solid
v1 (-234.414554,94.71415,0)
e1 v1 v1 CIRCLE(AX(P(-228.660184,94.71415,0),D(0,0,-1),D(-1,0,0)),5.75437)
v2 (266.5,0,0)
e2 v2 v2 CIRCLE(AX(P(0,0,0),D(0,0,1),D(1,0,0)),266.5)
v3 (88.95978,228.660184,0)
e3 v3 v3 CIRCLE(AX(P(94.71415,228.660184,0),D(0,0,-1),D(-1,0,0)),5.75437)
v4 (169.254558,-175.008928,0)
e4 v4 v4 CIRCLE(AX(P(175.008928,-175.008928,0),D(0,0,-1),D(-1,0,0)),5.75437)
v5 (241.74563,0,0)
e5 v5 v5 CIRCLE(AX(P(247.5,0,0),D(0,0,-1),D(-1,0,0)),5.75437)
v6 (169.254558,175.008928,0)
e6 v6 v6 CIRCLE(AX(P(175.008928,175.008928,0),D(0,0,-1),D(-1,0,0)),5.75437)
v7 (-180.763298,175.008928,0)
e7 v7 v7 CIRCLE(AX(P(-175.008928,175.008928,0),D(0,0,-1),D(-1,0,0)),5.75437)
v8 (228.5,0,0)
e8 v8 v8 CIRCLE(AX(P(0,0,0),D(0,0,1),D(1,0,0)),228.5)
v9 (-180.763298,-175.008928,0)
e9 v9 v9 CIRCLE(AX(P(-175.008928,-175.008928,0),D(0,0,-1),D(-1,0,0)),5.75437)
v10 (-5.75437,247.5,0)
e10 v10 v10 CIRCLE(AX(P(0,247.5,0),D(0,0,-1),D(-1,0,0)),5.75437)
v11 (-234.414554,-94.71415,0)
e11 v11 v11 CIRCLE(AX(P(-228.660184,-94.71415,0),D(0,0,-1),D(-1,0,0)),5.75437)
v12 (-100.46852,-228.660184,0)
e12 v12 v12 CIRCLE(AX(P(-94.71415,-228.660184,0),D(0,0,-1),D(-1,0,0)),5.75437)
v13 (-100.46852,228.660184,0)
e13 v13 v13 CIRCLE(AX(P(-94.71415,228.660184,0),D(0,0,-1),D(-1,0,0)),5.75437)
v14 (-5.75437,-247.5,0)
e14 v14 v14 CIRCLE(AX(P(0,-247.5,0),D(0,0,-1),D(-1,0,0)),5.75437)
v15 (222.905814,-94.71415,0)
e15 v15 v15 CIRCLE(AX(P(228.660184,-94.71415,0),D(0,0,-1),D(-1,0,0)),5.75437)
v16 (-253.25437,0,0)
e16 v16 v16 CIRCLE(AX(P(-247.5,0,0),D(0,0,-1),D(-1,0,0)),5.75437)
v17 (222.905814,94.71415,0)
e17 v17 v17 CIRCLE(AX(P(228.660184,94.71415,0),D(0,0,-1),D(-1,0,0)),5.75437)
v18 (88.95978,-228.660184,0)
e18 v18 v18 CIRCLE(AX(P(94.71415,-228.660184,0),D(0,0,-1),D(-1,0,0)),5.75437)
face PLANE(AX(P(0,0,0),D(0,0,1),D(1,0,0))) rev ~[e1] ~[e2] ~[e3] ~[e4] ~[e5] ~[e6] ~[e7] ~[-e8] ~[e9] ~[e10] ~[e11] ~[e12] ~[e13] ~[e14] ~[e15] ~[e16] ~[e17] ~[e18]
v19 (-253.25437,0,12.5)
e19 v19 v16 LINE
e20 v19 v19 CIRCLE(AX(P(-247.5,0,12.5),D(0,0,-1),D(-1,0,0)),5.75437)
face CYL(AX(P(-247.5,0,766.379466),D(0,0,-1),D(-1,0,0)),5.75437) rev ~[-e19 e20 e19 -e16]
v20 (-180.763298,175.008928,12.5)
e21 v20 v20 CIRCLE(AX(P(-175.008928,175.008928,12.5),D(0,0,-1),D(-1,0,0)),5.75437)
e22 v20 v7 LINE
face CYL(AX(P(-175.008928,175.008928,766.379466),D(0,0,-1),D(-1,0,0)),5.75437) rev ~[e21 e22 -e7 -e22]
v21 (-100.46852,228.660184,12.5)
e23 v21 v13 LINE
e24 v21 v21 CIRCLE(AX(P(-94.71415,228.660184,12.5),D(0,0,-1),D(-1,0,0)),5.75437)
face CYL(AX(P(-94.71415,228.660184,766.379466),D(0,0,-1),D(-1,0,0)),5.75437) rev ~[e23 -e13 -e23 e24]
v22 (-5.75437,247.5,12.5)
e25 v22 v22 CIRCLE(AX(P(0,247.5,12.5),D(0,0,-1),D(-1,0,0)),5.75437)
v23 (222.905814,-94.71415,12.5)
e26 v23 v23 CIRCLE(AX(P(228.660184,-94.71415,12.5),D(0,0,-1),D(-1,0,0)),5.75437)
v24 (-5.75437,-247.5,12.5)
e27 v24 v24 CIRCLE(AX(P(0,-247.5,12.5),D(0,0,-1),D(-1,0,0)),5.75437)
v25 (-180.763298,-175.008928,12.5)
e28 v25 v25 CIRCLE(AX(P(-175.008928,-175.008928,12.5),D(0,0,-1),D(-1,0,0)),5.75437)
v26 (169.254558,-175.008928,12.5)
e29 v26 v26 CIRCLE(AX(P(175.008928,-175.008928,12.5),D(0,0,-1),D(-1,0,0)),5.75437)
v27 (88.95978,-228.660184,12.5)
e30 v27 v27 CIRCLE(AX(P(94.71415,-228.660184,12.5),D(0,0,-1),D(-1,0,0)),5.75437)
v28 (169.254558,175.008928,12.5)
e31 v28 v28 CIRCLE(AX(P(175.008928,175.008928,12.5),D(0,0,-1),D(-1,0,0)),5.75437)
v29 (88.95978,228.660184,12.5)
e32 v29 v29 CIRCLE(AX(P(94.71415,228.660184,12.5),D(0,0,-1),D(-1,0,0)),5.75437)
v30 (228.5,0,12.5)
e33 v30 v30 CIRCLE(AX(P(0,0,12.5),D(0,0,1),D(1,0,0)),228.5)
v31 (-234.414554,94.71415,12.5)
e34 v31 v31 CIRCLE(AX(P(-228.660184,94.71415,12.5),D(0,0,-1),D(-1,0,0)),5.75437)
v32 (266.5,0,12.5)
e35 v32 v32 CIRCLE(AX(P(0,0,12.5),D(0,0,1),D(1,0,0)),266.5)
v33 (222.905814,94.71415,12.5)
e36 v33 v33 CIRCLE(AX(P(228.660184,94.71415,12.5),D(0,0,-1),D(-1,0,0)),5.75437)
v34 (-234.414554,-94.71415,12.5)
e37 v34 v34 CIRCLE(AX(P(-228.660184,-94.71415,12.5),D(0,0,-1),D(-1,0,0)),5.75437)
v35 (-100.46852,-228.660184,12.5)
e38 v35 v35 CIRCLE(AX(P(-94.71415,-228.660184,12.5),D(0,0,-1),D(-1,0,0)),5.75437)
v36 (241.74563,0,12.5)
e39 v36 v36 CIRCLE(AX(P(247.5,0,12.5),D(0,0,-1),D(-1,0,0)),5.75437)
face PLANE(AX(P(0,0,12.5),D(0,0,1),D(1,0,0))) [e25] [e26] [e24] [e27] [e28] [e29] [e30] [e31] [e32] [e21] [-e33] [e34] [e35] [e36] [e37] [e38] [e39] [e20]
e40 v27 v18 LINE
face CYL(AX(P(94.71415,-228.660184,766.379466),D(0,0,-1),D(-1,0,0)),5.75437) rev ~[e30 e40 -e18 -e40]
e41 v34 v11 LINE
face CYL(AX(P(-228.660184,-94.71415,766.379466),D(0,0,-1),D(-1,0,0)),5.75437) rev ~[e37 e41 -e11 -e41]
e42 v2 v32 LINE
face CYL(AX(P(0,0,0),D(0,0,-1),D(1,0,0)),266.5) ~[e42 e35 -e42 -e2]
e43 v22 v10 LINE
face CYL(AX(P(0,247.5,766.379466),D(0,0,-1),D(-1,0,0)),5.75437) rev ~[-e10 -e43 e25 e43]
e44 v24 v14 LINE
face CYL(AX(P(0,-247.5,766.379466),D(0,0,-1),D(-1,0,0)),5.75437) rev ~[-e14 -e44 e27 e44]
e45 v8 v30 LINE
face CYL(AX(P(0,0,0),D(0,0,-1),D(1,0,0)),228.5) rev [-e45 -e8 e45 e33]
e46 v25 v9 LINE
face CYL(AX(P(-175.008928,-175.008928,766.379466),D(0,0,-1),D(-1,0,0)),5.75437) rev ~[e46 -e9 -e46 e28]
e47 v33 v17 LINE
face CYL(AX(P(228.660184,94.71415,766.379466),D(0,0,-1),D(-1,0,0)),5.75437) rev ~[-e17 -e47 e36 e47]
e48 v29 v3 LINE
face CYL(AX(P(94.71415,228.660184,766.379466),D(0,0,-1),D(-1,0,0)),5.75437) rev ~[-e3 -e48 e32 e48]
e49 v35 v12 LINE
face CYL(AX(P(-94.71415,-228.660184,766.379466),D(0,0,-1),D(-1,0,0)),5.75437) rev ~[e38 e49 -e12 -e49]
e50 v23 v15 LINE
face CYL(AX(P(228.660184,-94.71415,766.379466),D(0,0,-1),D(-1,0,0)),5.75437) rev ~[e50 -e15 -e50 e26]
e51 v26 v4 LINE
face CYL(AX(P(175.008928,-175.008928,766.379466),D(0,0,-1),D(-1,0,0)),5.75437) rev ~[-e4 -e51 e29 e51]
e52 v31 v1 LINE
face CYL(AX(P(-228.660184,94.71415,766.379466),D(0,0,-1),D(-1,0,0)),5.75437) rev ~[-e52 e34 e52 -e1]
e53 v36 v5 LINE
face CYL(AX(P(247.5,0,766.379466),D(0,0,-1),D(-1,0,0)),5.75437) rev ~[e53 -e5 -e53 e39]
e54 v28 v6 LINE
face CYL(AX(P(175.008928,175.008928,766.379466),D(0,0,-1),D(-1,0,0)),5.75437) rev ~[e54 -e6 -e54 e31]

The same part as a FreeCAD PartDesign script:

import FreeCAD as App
import Part
import Sketcher
Q = App.Units.Quantity

doc = App.newDocument("Part")
body = doc.addObject("PartDesign::Body", "Body")

# Sketch on XY plane
sketch1 = body.newObject("Sketcher::SketchObject", "Sketch")
sketch1.AttachmentSupport = (doc.getObject("XY_Plane"), [""])
sketch1.MapMode = "FlatFace"
sketch1.addGeometry([
    Part.Circle(App.Vector(0, 0, 0), App.Vector(0, 0, 1), 266),
    Part.Circle(App.Vector(0, 0, 0), App.Vector(0, 0, 1), 228),
], False)
sketch1.addConstraint([
    Sketcher.Constraint("Coincident", 0, 3, -1, 1),
    Sketcher.Constraint("Coincident", 1, 3, -1, 1),
    Sketcher.Constraint("Diameter", 0, Q("533 mm")),
    Sketcher.Constraint("Diameter", 1, Q("457 mm")),
])
pad1 = body.newObject("PartDesign::Pad", "Pad")
pad1.Profile = sketch1
pad1.Length = 12.5

# Sketch on XY plane
sketch2 = body.newObject("Sketcher::SketchObject", "Sketch001")
sketch2.AttachmentSupport = (doc.getObject("XY_Plane"), [""])
sketch2.MapMode = "FlatFace"
sketch2.AttachmentOffset = App.Placement(App.Vector(0, 0, 12.5), App.Rotation())
sketch2.addGeometry([
    Part.Circle(App.Vector(-95, 229, 0), App.Vector(0, 0, 1), 6),  # 0
    Part.Circle(App.Vector(0, 248, 0), App.Vector(0, 0, 1), 6),  # 1
    Part.Circle(App.Vector(95, 229, 0), App.Vector(0, 0, 1), 6),  # 2
    Part.Circle(App.Vector(175, 175, 0), App.Vector(0, 0, 1), 6),  # 3
    Part.Circle(App.Vector(229, 95, 0), App.Vector(0, 0, 1), 6),  # 4
    Part.Circle(App.Vector(248, 0, 0), App.Vector(0, 0, 1), 6),  # 5
    Part.Circle(App.Vector(229, -95, 0), App.Vector(0, 0, 1), 6),  # 6
    Part.Circle(App.Vector(175, -175, 0), App.Vector(0, 0, 1), 6),  # 7
    Part.Circle(App.Vector(95, -229, 0), App.Vector(0, 0, 1), 6),  # 8
    Part.Circle(App.Vector(0, -248, 0), App.Vector(0, 0, 1), 6),  # 9
    Part.Circle(App.Vector(-95, -229, 0), App.Vector(0, 0, 1), 6),  # 10
    Part.Circle(App.Vector(-175, -175, 0), App.Vector(0, 0, 1), 6),  # 11
    Part.Circle(App.Vector(-229, -95, 0), App.Vector(0, 0, 1), 6),  # 12
    Part.Circle(App.Vector(-248, 0, 0), App.Vector(0, 0, 1), 6),  # 13
    Part.Circle(App.Vector(-229, 95, 0), App.Vector(0, 0, 1), 6),  # 14
    Part.Circle(App.Vector(-175, 175, 0), App.Vector(0, 0, 1), 6),  # 15
], False)
sketch2.addConstraint([
    Sketcher.Constraint("Equal", 0, 1),
    Sketcher.Constraint("Equal", 1, 2),
    Sketcher.Constraint("Equal", 2, 3),
    Sketcher.Constraint("Equal", 3, 4),
    Sketcher.Constraint("Equal", 4, 5),
    Sketcher.Constraint("Equal", 5, 6),
    Sketcher.Constraint("Equal", 6, 7),
    Sketcher.Constraint("Equal", 7, 8),
    Sketcher.Constraint("Equal", 8, 9),
    Sketcher.Constraint("Equal", 9, 10),
    Sketcher.Constraint("Equal", 10, 11),
    Sketcher.Constraint("Equal", 11, 12),
    Sketcher.Constraint("Equal", 12, 13),
    Sketcher.Constraint("Equal", 13, 14),
    Sketcher.Constraint("Equal", 14, 15),
    Sketcher.Constraint("Symmetric", 0, 3, 8, 3, -1, 1),
    Sketcher.Constraint("Symmetric", 1, 3, 9, 3, -1, 1),
    Sketcher.Constraint("Symmetric", 2, 3, 10, 3, -1, 1),
    Sketcher.Constraint("Symmetric", 3, 3, 11, 3, -1, 1),
    Sketcher.Constraint("Symmetric", 4, 3, 12, 3, -1, 1),
    Sketcher.Constraint("Symmetric", 5, 3, 13, 3, -1, 1),
    Sketcher.Constraint("Symmetric", 6, 3, 14, 3, -1, 1),
    Sketcher.Constraint("Symmetric", 7, 3, 15, 3, -1, 1),
    Sketcher.Constraint("Symmetric", 0, 3, 2, 3, -2),
    Sketcher.Constraint("Symmetric", 7, 3, 11, 3, -2),
    Sketcher.Constraint("Symmetric", 6, 3, 12, 3, -2),
    Sketcher.Constraint("PointOnObject", 1, 3, -2),
    Sketcher.Constraint("PointOnObject", 5, 3, -1),
    Sketcher.Constraint("DistanceY", -1, 1, 1, 3, Q("247.5 mm")),
    Sketcher.Constraint("DistanceX", -1, 1, 5, 3, Q("247.5 mm")),
    Sketcher.Constraint("Diameter", 0, Q("11.50874 mm")),
    Sketcher.Constraint("DistanceX", 0, 3, 2, 3, Q("189.428299 mm")),
    Sketcher.Constraint("DistanceY", 6, 3, 4, 3, Q("189.428299 mm")),
    Sketcher.Constraint("DistanceX", -1, 1, 3, 3, Q("175.008928 mm")),
    Sketcher.Constraint("DistanceY", -1, 1, 3, 3, Q("175.008928 mm")),
    Sketcher.Constraint("DistanceY", -1, 1, 0, 3, Q("228.660184 mm")),
    Sketcher.Constraint("DistanceX", -1, 1, 4, 3, Q("228.660184 mm")),
])
doc.recompute()
hole = body.newObject("PartDesign::Hole", "Hole")
hole.Profile = sketch2
hole.ThreadType = "None"
hole.Diameter = 11.50874
hole.DepthType = "ThroughAll"

doc.recompute()
